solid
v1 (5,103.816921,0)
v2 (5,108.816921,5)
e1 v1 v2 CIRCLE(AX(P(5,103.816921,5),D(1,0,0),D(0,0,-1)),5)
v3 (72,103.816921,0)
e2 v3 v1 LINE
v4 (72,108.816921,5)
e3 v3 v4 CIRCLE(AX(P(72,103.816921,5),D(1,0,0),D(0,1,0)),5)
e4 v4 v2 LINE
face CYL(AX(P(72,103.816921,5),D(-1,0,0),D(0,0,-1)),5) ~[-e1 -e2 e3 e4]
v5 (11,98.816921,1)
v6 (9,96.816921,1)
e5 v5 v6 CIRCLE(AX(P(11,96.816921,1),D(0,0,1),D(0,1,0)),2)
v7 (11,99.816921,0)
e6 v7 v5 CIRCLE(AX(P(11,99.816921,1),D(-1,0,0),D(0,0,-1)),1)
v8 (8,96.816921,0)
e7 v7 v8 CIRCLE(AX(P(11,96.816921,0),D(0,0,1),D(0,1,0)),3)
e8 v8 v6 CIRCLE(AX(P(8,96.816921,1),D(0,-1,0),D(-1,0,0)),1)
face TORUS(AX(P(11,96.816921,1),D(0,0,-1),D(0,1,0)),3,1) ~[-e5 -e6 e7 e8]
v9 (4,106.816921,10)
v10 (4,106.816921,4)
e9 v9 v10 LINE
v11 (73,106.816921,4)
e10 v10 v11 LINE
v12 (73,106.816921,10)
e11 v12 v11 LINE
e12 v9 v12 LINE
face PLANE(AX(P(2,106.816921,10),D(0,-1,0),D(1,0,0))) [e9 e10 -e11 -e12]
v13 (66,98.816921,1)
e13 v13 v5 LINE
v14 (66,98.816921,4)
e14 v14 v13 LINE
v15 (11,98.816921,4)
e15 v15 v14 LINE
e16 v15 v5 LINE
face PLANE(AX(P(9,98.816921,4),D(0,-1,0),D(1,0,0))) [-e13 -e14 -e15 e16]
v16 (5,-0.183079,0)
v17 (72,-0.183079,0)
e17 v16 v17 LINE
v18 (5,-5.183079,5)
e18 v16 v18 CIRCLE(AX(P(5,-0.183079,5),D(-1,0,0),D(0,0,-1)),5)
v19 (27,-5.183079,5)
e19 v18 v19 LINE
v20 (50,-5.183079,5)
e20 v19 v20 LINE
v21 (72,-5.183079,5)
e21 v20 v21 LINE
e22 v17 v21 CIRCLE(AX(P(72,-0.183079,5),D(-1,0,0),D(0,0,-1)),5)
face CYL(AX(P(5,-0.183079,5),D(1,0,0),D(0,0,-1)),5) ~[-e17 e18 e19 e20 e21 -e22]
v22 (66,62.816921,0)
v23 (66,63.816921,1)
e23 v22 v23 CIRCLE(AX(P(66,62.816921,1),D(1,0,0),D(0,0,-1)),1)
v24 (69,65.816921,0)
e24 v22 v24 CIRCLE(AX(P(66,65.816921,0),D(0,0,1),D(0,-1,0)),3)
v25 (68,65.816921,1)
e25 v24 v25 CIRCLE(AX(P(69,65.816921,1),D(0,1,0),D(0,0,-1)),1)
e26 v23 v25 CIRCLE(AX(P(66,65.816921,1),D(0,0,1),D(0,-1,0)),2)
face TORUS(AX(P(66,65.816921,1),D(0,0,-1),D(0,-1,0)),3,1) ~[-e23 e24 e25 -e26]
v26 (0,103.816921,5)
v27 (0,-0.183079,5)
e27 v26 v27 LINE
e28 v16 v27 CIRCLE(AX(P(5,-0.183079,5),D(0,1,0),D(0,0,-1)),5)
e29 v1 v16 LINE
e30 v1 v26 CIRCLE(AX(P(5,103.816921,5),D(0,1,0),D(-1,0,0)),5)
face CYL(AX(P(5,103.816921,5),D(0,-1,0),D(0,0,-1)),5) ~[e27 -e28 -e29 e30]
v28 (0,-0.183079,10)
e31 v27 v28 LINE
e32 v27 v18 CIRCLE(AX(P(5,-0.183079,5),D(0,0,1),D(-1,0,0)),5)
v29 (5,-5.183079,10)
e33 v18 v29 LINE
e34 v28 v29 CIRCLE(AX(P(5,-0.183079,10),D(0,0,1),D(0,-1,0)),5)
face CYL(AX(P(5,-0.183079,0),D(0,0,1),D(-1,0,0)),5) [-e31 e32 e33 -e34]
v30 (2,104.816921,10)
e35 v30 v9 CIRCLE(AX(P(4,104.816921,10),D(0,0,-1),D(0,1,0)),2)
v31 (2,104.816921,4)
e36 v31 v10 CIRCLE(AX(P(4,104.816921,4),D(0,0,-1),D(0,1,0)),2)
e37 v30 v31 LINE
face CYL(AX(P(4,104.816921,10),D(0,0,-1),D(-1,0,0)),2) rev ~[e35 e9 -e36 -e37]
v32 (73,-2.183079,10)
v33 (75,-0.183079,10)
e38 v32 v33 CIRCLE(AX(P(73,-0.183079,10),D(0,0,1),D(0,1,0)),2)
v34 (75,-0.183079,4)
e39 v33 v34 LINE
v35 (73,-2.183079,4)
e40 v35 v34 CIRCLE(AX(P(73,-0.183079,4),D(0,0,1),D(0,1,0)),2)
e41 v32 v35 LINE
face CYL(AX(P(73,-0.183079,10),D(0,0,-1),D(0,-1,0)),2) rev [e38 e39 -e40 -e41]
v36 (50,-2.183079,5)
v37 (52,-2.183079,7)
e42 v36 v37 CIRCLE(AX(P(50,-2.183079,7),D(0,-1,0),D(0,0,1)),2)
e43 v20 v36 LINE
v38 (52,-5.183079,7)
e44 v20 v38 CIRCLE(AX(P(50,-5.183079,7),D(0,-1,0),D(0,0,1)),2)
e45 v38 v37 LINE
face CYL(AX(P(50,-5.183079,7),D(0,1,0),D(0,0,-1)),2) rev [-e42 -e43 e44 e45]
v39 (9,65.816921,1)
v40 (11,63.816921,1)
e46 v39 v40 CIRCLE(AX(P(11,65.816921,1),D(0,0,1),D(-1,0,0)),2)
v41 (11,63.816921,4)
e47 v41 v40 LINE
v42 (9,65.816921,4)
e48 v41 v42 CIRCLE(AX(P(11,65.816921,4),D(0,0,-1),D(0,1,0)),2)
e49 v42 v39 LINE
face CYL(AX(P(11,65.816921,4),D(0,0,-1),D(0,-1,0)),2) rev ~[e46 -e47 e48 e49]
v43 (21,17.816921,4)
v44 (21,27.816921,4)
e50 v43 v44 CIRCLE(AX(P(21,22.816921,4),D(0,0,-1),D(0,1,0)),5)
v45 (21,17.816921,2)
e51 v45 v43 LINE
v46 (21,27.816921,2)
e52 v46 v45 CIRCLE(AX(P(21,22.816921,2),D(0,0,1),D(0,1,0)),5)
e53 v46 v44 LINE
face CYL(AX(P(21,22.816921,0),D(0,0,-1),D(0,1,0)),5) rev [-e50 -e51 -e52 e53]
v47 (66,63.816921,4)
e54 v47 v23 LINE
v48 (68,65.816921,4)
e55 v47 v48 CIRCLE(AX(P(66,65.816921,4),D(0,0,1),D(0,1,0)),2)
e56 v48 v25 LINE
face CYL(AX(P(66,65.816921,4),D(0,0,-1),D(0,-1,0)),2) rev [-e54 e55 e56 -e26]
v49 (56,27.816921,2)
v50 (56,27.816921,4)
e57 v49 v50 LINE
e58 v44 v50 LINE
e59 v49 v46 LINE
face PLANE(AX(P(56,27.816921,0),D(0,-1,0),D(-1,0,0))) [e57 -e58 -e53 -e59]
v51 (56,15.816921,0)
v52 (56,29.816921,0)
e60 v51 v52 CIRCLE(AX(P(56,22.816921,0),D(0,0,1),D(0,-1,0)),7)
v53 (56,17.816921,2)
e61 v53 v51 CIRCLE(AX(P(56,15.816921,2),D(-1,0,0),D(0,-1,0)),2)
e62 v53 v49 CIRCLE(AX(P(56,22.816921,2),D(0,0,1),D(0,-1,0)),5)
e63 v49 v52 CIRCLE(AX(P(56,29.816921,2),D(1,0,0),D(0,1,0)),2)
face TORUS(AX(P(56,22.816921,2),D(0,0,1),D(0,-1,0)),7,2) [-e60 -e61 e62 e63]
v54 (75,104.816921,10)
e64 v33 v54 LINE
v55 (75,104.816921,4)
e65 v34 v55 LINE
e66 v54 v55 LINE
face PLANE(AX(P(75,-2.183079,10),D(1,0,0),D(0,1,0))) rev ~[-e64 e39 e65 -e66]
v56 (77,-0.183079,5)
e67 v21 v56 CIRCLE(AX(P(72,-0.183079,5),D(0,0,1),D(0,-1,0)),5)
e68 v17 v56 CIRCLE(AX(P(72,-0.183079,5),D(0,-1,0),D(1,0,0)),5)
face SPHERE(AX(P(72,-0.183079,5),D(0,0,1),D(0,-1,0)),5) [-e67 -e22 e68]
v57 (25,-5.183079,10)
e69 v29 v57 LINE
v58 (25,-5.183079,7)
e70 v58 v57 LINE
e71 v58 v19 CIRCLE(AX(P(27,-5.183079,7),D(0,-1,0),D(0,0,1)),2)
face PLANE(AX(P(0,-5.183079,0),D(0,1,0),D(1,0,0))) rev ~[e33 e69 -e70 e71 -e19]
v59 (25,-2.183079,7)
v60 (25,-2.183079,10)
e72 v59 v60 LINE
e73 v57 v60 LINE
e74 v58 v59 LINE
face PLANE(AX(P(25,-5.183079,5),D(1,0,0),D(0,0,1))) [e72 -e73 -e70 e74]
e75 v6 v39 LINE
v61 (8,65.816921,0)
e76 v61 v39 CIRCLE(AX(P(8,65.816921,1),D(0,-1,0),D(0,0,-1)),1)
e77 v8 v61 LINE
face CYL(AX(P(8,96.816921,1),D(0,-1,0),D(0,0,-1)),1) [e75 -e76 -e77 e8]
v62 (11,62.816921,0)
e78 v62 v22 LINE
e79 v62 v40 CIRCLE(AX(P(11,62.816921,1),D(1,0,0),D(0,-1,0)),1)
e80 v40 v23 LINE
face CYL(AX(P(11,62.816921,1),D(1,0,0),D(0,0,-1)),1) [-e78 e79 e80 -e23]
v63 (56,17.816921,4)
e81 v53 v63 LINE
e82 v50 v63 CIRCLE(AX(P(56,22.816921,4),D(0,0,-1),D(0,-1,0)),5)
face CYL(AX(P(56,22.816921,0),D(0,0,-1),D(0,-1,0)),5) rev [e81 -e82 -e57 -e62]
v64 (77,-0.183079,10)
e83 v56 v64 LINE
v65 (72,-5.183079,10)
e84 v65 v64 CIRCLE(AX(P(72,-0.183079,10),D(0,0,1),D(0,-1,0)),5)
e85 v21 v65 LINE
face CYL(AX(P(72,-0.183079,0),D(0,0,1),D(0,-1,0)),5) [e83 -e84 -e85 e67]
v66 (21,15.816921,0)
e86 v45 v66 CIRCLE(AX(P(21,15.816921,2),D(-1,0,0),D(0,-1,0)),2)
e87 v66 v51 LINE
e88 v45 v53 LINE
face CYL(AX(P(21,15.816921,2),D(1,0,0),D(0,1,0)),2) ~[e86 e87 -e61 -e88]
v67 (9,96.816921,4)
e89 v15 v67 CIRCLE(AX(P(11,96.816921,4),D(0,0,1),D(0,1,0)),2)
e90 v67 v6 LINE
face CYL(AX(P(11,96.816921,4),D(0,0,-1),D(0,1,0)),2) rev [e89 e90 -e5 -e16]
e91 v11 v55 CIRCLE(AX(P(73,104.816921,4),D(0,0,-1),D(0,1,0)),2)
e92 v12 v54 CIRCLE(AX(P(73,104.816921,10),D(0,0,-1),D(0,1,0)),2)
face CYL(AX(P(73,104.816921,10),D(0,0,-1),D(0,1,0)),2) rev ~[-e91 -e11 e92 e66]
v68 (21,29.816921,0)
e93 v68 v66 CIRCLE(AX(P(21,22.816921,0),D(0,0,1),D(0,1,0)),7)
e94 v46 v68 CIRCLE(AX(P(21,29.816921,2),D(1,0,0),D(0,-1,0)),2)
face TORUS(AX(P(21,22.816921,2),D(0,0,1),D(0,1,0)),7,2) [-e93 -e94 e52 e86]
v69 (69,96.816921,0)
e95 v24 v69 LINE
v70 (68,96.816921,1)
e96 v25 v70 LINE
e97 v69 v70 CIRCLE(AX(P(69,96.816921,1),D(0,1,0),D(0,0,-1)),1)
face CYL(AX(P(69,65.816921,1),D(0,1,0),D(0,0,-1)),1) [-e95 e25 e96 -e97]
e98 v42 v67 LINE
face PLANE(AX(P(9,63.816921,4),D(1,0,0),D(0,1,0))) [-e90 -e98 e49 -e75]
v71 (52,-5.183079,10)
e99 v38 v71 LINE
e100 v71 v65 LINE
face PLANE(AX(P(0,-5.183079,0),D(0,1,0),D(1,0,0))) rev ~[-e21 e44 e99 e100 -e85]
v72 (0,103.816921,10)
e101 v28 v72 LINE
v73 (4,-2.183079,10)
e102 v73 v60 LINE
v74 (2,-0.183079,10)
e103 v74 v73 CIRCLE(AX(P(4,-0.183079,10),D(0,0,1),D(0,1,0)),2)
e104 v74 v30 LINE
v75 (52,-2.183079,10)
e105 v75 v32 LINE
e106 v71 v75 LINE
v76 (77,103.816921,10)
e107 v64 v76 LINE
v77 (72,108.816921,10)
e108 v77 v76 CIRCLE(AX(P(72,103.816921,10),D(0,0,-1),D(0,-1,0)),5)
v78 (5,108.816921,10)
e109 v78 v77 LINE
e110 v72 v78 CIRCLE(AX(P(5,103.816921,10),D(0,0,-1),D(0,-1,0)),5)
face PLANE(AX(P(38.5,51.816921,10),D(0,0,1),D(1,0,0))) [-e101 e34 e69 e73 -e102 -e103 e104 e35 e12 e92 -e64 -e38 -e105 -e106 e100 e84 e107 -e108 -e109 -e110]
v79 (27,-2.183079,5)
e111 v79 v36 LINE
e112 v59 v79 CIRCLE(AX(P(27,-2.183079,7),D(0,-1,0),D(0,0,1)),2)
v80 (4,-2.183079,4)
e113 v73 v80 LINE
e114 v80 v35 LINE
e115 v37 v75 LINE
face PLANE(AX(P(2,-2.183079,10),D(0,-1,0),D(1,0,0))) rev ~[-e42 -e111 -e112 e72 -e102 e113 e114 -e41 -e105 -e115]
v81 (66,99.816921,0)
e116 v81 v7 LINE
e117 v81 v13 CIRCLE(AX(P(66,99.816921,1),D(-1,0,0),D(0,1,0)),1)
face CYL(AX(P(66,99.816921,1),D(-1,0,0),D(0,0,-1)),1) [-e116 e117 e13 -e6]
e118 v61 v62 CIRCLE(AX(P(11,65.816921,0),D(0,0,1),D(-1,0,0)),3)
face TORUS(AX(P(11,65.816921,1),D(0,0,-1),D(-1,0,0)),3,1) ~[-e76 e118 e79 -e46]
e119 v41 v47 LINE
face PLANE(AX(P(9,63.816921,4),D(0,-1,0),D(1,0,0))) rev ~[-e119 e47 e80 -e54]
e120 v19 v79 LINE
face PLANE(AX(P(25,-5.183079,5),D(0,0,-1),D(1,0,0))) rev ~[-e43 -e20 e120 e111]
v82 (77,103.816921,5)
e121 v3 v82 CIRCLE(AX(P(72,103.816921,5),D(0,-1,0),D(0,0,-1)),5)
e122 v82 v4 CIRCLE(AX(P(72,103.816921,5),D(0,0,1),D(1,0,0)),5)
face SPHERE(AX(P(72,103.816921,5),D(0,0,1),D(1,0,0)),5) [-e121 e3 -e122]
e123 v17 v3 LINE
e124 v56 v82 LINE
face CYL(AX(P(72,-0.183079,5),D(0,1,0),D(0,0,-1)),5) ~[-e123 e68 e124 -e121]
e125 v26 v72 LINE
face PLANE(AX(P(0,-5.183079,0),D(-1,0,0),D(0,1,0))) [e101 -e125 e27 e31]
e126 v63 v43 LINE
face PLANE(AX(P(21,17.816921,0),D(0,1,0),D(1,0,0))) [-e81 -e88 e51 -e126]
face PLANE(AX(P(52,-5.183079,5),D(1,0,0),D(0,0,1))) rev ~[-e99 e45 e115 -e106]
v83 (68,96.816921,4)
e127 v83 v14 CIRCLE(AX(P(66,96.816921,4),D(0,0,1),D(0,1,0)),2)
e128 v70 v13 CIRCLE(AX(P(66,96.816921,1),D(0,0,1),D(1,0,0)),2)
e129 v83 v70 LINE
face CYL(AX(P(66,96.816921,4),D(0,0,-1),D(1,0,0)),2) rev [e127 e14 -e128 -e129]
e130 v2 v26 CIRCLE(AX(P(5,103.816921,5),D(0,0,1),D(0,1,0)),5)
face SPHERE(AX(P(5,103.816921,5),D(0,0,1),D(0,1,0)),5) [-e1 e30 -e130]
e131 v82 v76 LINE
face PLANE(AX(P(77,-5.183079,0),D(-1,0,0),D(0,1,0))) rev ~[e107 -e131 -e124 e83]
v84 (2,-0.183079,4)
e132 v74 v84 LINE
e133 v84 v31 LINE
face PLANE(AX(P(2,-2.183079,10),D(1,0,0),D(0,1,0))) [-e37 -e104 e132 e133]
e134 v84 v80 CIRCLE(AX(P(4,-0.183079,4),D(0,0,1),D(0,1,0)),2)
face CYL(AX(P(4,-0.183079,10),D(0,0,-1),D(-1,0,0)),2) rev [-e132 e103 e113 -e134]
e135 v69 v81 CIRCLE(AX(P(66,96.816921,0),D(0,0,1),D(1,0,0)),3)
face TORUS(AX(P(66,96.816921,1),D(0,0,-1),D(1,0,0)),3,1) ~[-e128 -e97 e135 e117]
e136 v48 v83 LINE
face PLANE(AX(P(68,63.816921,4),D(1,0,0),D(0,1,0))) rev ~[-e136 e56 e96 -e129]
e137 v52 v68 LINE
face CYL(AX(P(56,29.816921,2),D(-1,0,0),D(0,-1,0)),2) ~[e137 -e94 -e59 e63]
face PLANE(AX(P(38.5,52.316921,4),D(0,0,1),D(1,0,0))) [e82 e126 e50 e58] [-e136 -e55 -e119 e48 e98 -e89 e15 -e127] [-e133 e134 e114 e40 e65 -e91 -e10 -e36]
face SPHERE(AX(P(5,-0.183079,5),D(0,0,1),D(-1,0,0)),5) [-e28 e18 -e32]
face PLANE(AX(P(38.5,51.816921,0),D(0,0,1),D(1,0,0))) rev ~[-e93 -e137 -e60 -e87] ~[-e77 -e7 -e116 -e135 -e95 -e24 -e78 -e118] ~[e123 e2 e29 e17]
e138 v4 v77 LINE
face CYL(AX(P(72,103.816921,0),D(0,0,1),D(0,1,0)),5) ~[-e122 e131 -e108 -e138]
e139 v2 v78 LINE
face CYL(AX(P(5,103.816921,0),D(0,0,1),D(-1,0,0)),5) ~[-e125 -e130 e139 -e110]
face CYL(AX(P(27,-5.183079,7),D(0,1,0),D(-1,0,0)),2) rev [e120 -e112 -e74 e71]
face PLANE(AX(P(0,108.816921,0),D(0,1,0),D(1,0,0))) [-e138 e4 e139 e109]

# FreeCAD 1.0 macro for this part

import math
import FreeCAD as App
import Part
import Sketcher

V = App.Vector


def edges_at(feature, points):
    """Names of the edges that pass closest to the given points."""
    edges = feature.Shape.Edges
    near = lambda p: min(range(len(edges)), key=lambda i: edges[i].distToShape(Part.Vertex(*p))[0])
    return sorted({f"Edge{near(p) + 1}" for p in points})

doc = App.newDocument("Part")
body = doc.addObject("PartDesign::Body", "Body")

sketch1 = doc.addObject("Sketcher::SketchObject", "Sketch")
body.addObject(sketch1)
sketch1.AttachmentSupport = (doc.XY_Plane, [""])
sketch1.MapMode = "FlatFace"
sketch1.addGeometry(Part.LineSegment(V(0, 109, 0), V(0, -5, 0)), False)
sketch1.addGeometry(Part.LineSegment(V(0, -5, 0), V(77, -5, 0)), False)
sketch1.addGeometry(Part.LineSegment(V(77, -5, 0), V(77, 109, 0)), False)
sketch1.addGeometry(Part.LineSegment(V(77, 109, 0), V(0, 109, 0)), False)
sketch1.addConstraint(Sketcher.Constraint("Coincident", 0, 2, 1, 1))
sketch1.addConstraint(Sketcher.Constraint("Coincident", 1, 2, 2, 1))
sketch1.addConstraint(Sketcher.Constraint("Coincident", 2, 2, 3, 1))
sketch1.addConstraint(Sketcher.Constraint("Coincident", 3, 2, 0, 1))
sketch1.addConstraint(Sketcher.Constraint("Vertical", 0))
sketch1.addConstraint(Sketcher.Constraint("Horizontal", 1))
sketch1.addConstraint(Sketcher.Constraint("Vertical", 2))
sketch1.addConstraint(Sketcher.Constraint("Horizontal", 3))
sketch1.addConstraint(Sketcher.Constraint("PointOnObject", 0, 2, -2))
sketch1.addConstraint(Sketcher.Constraint("DistanceX", 1, 1, 1, 2, 77.0))
sketch1.addConstraint(Sketcher.Constraint("DistanceY", 0, 2, 0, 1, 114.0))
sketch1.addConstraint(Sketcher.Constraint("DistanceY", 0, 2, -1, 1, 5.183079))
pad1 = doc.addObject("PartDesign::Pad", "Pad")
body.addObject(pad1)
pad1.Profile = sketch1
pad1.Length = 10

sketch2 = doc.addObject("Sketcher::SketchObject", "Sketch001")
body.addObject(sketch2)
sketch2.AttachmentSupport = (doc.XY_Plane, [""])
sketch2.MapMode = "FlatFace"
sketch2.AttachmentOffset = App.Placement(V(0, 0, 10), App.Rotation())
sketch2.addGeometry(Part.LineSegment(V(2, 107, 0), V(2, -2, 0)), False)
sketch2.addGeometry(Part.LineSegment(V(2, -2, 0), V(75, -2, 0)), False)
sketch2.addGeometry(Part.LineSegment(V(75, -2, 0), V(75, 107, 0)), False)
sketch2.addGeometry(Part.LineSegment(V(75, 107, 0), V(2, 107, 0)), False)
sketch2.addConstraint(Sketcher.Constraint("Coincident", 0, 2, 1, 1))
sketch2.addConstraint(Sketcher.Constraint("Coincident", 1, 2, 2, 1))
sketch2.addConstraint(Sketcher.Constraint("Coincident", 2, 2, 3, 1))
sketch2.addConstraint(Sketcher.Constraint("Coincident", 3, 2, 0, 1))
sketch2.addConstraint(Sketcher.Constraint("Vertical", 0))
sketch2.addConstraint(Sketcher.Constraint("Horizontal", 1))
sketch2.addConstraint(Sketcher.Constraint("Vertical", 2))
sketch2.addConstraint(Sketcher.Constraint("Horizontal", 3))
sketch2.addConstraint(Sketcher.Constraint("DistanceX", 1, 1, 1, 2, 73.0))
sketch2.addConstraint(Sketcher.Constraint("DistanceY", 0, 2, 0, 1, 109.0))
sketch2.addConstraint(Sketcher.Constraint("DistanceX", -1, 1, 0, 2, 2.0))
sketch2.addConstraint(Sketcher.Constraint("DistanceY", 0, 2, -1, 1, 2.183079))
pocket1 = doc.addObject("PartDesign::Pocket", "Pocket")
body.addObject(pocket1)
pocket1.Profile = sketch2
pocket1.Length = 6

sketch3 = doc.addObject("Sketcher::SketchObject", "Sketch002")
body.addObject(sketch3)
sketch3.AttachmentSupport = (doc.XY_Plane, [""])
sketch3.MapMode = "FlatFace"
sketch3.AttachmentOffset = App.Placement(V(0, 0, 4), App.Rotation())
sketch3.addGeometry(Part.LineSegment(V(9, 99, 0), V(9, 64, 0)), False)
sketch3.addGeometry(Part.LineSegment(V(9, 64, 0), V(68, 64, 0)), False)
sketch3.addGeometry(Part.LineSegment(V(68, 64, 0), V(68, 99, 0)), False)
sketch3.addGeometry(Part.LineSegment(V(68, 99, 0), V(9, 99, 0)), False)
sketch3.addConstraint(Sketcher.Constraint("Coincident", 0, 2, 1, 1))
sketch3.addConstraint(Sketcher.Constraint("Coincident", 1, 2, 2, 1))
sketch3.addConstraint(Sketcher.Constraint("Coincident", 2, 2, 3, 1))
sketch3.addConstraint(Sketcher.Constraint("Coincident", 3, 2, 0, 1))
sketch3.addConstraint(Sketcher.Constraint("Vertical", 0))
sketch3.addConstraint(Sketcher.Constraint("Horizontal", 1))
sketch3.addConstraint(Sketcher.Constraint("Vertical", 2))
sketch3.addConstraint(Sketcher.Constraint("Horizontal", 3))
sketch3.addConstraint(Sketcher.Constraint("DistanceX", 1, 1, 1, 2, 59.0))
sketch3.addConstraint(Sketcher.Constraint("DistanceY", 0, 2, 0, 1, 35.0))
sketch3.addConstraint(Sketcher.Constraint("DistanceX", -1, 1, 0, 2, 9.0))
sketch3.addConstraint(Sketcher.Constraint("DistanceY", -1, 1, 0, 2, 63.816921))
pocket2 = doc.addObject("PartDesign::Pocket", "Pocket001")
body.addObject(pocket2)
pocket2.Profile = sketch3
pocket2.Length = 6
doc.recompute()

fillet = doc.addObject("PartDesign::Fillet", "Fillet")
body.addObject(fillet)
fillet.Base = (pocket2, edges_at(pocket2, [
    (0, 108.817, 5),
    (77, 108.817, 5),
    (77, -5.183, 5),
    (0, -5.183, 5),
]))
fillet.Radius = 5
doc.recompute()

fillet2 = doc.addObject("PartDesign::Fillet", "Fillet001")
body.addObject(fillet2)
fillet2.Base = (fillet, edges_at(fillet, [
    (38.5, -5.183, 0),
    (0, 51.817, 0),
    (38.5, 108.817, 0),
    (77, 51.817, 0),
    (75.536, 107.352, 0),
    (1.464, 107.352, 0),
    (75.536, -3.719, 0),
    (1.464, -3.719, 0),
]))
fillet2.Radius = 5
doc.recompute()

fillet3 = doc.addObject("PartDesign::Fillet", "Fillet002")
body.addObject(fillet3)
fillet3.Base = (fillet2, edges_at(fillet2, [
    (9, 63.817, 2),
    (9, 98.817, 2),
    (68, 98.817, 2),
    (68, 63.817, 2),
]))
fillet3.Radius = 2
doc.recompute()

fillet4 = doc.addObject("PartDesign::Fillet", "Fillet003")
body.addObject(fillet4)
fillet4.Base = (fillet3, edges_at(fillet3, [
    (2, -2.183, 7),
    (2, 106.817, 7),
    (75, 106.817, 7),
    (75, -2.183, 7),
]))
fillet4.Radius = 2

sketch4 = doc.addObject("Sketcher::SketchObject", "Sketch003")
body.addObject(sketch4)
sketch4.AttachmentSupport = (doc.XZ_Plane, [""])
sketch4.MapMode = "FlatFace"
sketch4.AttachmentOffset = App.Placement(V(0, 0, 5.183079), App.Rotation())
sketch4.addGeometry(Part.LineSegment(V(25, 10, 0), V(25, 5, 0)), False)
sketch4.addGeometry(Part.LineSegment(V(25, 5, 0), V(52, 5, 0)), False)
sketch4.addGeometry(Part.LineSegment(V(52, 5, 0), V(52, 10, 0)), False)
sketch4.addGeometry(Part.LineSegment(V(52, 10, 0), V(25, 10, 0)), False)
sketch4.addConstraint(Sketcher.Constraint("Coincident", 0, 2, 1, 1))
sketch4.addConstraint(Sketcher.Constraint("Coincident", 1, 2, 2, 1))
sketch4.addConstraint(Sketcher.Constraint("Coincident", 2, 2, 3, 1))
sketch4.addConstraint(Sketcher.Constraint("Coincident", 3, 2, 0, 1))
sketch4.addConstraint(Sketcher.Constraint("Vertical", 0))
sketch4.addConstraint(Sketcher.Constraint("Horizontal", 1))
sketch4.addConstraint(Sketcher.Constraint("Vertical", 2))
sketch4.addConstraint(Sketcher.Constraint("Horizontal", 3))
sketch4.addConstraint(Sketcher.Constraint("DistanceX", 1, 1, 1, 2, 27.0))
sketch4.addConstraint(Sketcher.Constraint("DistanceY", 0, 2, 0, 1, 5.0))
sketch4.addConstraint(Sketcher.Constraint("DistanceX", -1, 1, 0, 2, 25.0))
sketch4.addConstraint(Sketcher.Constraint("DistanceY", -1, 1, 0, 2, 5.0))
pocket3 = doc.addObject("PartDesign::Pocket", "Pocket002")
body.addObject(pocket3)
pocket3.Profile = sketch4
pocket3.Length = 6
doc.recompute()

fillet5 = doc.addObject("PartDesign::Fillet", "Fillet004")
body.addObject(fillet5)
fillet5.Base = (pocket3, edges_at(pocket3, [(52, -3.683, 5), (25, -3.683, 5)]))
fillet5.Radius = 2

sketch5 = doc.addObject("Sketcher::SketchObject", "Sketch004")
body.addObject(sketch5)
sketch5.AttachmentSupport = (doc.XY_Plane, [""])
sketch5.MapMode = "FlatFace"
sketch5.addGeometry(Part.LineSegment(V(21, 28, 0), V(56, 28, 0)), False)
sketch5.addGeometry(Part.ArcOfCircle(Part.Circle(V(56, 23, 0), V(0, 0, 1), 5), math.radians(-90), math.radians(90)), False)
sketch5.addGeometry(Part.LineSegment(V(56, 18, 0), V(21, 18, 0)), False)
sketch5.addGeometry(Part.ArcOfCircle(Part.Circle(V(21, 23, 0), V(0, 0, 1), 5), math.radians(90), math.radians(270)), False)
sketch5.addConstraint(Sketcher.Constraint("Tangent", 0, 2, 1, 2))
sketch5.addConstraint(Sketcher.Constraint("Tangent", 1, 1, 2, 1))
sketch5.addConstraint(Sketcher.Constraint("Tangent", 2, 2, 3, 2))
sketch5.addConstraint(Sketcher.Constraint("Tangent", 3, 1, 0, 1))
sketch5.addConstraint(Sketcher.Constraint("Horizontal", 0))
sketch5.addConstraint(Sketcher.Constraint("Horizontal", 2))
sketch5.addConstraint(Sketcher.Constraint("Radius", 1, 5.0))
sketch5.addConstraint(Sketcher.Constraint("DistanceX", 0, 1, 0, 2, 35.0))
sketch5.addConstraint(Sketcher.Constraint("DistanceX", -1, 1, 1, 3, 56.0))
sketch5.addConstraint(Sketcher.Constraint("DistanceY", -1, 1, 1, 3, 22.816921))
pocket4 = doc.addObject("PartDesign::Pocket", "Pocket003")
body.addObject(pocket4)
pocket4.Profile = sketch5
pocket4.Length = 10
pocket4.Reversed = True
doc.recompute()

fillet6 = doc.addObject("PartDesign::Fillet", "Fillet005")
body.addObject(fillet6)
fillet6.Base = (pocket4, edges_at(pocket4, [
    (61, 22.817, 0),
    (38.5, 17.817, 0),
    (16, 22.817, 0),
    (38.5, 27.817, 0),
]))
fillet6.Radius = 2
doc.recompute()

fillet7 = doc.addObject("PartDesign::Fillet", "Fillet006")
body.addObject(fillet7)
fillet7.Base = (fillet6, edges_at(fillet6, [
    (68, 81.317, 0),
    (38.5, 63.817, 0),
    (9, 81.317, 0),
    (38.5, 98.817, 0),
    (67.414, 64.403, 0),
    (9.586, 64.403, 0),
    (9.586, 98.231, 0),
    (67.414, 98.231, 0),
]))
fillet7.Radius = 1

doc.recompute()
